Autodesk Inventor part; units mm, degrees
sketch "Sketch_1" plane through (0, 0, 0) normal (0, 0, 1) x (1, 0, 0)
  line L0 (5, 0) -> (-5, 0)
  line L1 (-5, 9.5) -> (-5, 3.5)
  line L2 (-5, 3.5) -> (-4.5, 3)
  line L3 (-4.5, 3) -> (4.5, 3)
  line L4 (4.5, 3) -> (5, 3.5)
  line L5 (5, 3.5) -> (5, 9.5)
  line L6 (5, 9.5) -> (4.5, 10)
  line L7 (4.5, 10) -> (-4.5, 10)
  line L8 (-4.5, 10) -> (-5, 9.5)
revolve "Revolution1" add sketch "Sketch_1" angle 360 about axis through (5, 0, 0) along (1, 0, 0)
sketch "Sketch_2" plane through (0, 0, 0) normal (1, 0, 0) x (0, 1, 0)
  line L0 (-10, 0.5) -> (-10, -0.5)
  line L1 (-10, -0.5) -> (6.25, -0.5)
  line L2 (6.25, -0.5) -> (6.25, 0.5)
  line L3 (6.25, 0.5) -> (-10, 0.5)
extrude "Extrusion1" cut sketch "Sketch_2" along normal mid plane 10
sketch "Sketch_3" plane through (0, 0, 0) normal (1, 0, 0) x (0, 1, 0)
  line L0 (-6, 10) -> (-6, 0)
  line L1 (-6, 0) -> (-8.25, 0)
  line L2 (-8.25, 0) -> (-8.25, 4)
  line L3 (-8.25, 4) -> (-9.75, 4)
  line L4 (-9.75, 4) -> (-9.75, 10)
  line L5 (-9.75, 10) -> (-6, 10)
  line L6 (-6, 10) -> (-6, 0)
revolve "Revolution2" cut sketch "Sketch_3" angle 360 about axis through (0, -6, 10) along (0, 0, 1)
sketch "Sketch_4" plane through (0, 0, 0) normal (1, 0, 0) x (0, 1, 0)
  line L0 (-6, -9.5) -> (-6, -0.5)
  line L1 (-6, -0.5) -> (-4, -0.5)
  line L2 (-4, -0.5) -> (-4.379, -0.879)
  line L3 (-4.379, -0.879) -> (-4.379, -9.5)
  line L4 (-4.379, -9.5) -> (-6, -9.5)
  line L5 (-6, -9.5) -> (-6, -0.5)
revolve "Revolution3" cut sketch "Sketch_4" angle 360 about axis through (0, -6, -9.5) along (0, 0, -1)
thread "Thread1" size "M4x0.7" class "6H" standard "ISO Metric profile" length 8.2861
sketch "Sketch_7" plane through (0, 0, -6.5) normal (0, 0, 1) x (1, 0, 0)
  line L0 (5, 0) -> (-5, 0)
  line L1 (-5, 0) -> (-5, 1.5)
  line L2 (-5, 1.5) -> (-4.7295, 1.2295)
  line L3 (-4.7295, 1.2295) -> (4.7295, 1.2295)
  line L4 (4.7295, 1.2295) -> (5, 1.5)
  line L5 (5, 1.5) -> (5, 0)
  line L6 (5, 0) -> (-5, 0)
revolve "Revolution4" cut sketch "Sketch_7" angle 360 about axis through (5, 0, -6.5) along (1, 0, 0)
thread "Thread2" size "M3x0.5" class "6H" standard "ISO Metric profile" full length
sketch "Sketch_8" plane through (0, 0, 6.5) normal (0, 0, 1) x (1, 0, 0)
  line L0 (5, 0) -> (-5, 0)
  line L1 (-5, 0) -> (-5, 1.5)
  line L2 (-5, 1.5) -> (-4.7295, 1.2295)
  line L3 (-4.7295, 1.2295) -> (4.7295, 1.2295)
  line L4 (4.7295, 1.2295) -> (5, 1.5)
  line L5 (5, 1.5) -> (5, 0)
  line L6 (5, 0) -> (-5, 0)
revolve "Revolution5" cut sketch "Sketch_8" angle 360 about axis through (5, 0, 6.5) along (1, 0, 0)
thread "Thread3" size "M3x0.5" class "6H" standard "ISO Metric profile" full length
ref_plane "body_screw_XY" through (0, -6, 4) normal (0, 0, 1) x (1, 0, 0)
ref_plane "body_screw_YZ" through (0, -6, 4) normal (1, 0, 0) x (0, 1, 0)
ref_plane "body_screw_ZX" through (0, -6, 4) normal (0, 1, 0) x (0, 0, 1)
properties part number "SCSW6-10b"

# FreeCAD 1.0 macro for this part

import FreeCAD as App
import Part
import Sketcher
Q = App.Units.Quantity

doc = App.newDocument("Part")
body = doc.addObject("PartDesign::Body", "Body")

sketch1 = doc.addObject("Sketcher::SketchObject", "Sketch")
body.addObject(sketch1)
sketch1.AttachmentSupport = (doc.XY_Plane, [""])
sketch1.MapMode = "FlatFace"
sketch1.addGeometry([
    Part.LineSegment(App.Vector(-4.5, 10, 0), App.Vector(-5, 9.5, 0)),
    Part.LineSegment(App.Vector(-5, 9.5, 0), App.Vector(-5, 3.5, 0)),
    Part.LineSegment(App.Vector(-5, 3.5, 0), App.Vector(-4.5, 3, 0)),
    Part.LineSegment(App.Vector(-4.5, 3, 0), App.Vector(4.5, 3, 0)),
    Part.LineSegment(App.Vector(4.5, 3, 0), App.Vector(5, 3.5, 0)),
    Part.LineSegment(App.Vector(5, 3.5, 0), App.Vector(5, 9.5, 0)),
    Part.LineSegment(App.Vector(5, 9.5, 0), App.Vector(4.5, 10, 0)),
    Part.LineSegment(App.Vector(4.5, 10, 0), App.Vector(-4.5, 10, 0)),
], False)
sketch1.addConstraint([
    Sketcher.Constraint("Coincident", 0, 2, 1, 1),
    Sketcher.Constraint("Coincident", 1, 2, 2, 1),
    Sketcher.Constraint("Coincident", 2, 2, 3, 1),
    Sketcher.Constraint("Coincident", 3, 2, 4, 1),
    Sketcher.Constraint("Coincident", 4, 2, 5, 1),
    Sketcher.Constraint("Coincident", 5, 2, 6, 1),
    Sketcher.Constraint("Coincident", 6, 2, 7, 1),
    Sketcher.Constraint("Coincident", 7, 2, 0, 1),
    Sketcher.Constraint("Vertical", 1),
    Sketcher.Constraint("Horizontal", 3),
    Sketcher.Constraint("Vertical", 5),
    Sketcher.Constraint("Horizontal", 7),
    Sketcher.Constraint("Symmetric", 1, 2, 4, 2, -2),
    Sketcher.Constraint("Perpendicular", 0, 2),
    Sketcher.Constraint("Perpendicular", 2, 4),
    Sketcher.Constraint("Perpendicular", 4, 6),
    Sketcher.Constraint("Horizontal", 0, 2, 5, 2),
    Sketcher.Constraint("Vertical", 3, 2, 6, 2),
    Sketcher.Constraint("Vertical", 2, 2, 7, 2),
    Sketcher.Constraint("DistanceX", 3, 1, 3, 2, 9.0),
    Sketcher.Constraint("DistanceY", 1, 2, 1, 1, 6.0),
    Sketcher.Constraint("DistanceX", 0, 2, -1, 1, 5.0),
    Sketcher.Constraint("DistanceY", -1, 1, 2, 2, 3.0),
])
revolution = doc.addObject("PartDesign::Revolution", "Revolution")
body.addObject(revolution)
revolution.Profile = sketch1
revolution.ReferenceAxis = (sketch1, ["H_Axis"])
revolution.Angle = 360

sketch2 = doc.addObject("Sketcher::SketchObject", "Sketch001")
body.addObject(sketch2)
sketch2.AttachmentSupport = (doc.YZ_Plane, [""])
sketch2.MapMode = "FlatFace"
sketch2.addGeometry([
    Part.LineSegment(App.Vector(6.25, 0.5, 0), App.Vector(-10, 0.5, 0)),
    Part.LineSegment(App.Vector(-10, 0.5, 0), App.Vector(-10, -0.5, 0)),
    Part.LineSegment(App.Vector(-10, -0.5, 0), App.Vector(6.25, -0.5, 0)),
    Part.LineSegment(App.Vector(6.25, -0.5, 0), App.Vector(6.25, 0.5, 0)),
], False)
sketch2.addConstraint([
    Sketcher.Constraint("Coincident", 0, 2, 1, 1),
    Sketcher.Constraint("Coincident", 1, 2, 2, 1),
    Sketcher.Constraint("Coincident", 2, 2, 3, 1),
    Sketcher.Constraint("Coincident", 3, 2, 0, 1),
    Sketcher.Constraint("Horizontal", 0),
    Sketcher.Constraint("Vertical", 1),
    Sketcher.Constraint("Horizontal", 2),
    Sketcher.Constraint("Vertical", 3),
    Sketcher.Constraint("DistanceY", 1, 2, 1, 1, 1.0),
    Sketcher.Constraint("DistanceX", 0, 2, -1, 1, 10.0),
    Sketcher.Constraint("DistanceX", 0, 2, 0, 1, 16.25),
    Sketcher.Constraint("DistanceY", -1, 1, 0, 2, 0.5),
])
pocket1 = doc.addObject("PartDesign::Pocket", "Pocket")
body.addObject(pocket1)
pocket1.Profile = sketch2
pocket1.Length = 10
pocket1.Midplane = True

sketch3 = doc.addObject("Sketcher::SketchObject", "Sketch002")
body.addObject(sketch3)
sketch3.AttachmentSupport = (doc.YZ_Plane, [""])
sketch3.MapMode = "FlatFace"
sketch3.addGeometry([
    Part.LineSegment(App.Vector(-6, 0, 0), App.Vector(-6, 10, 0)),
    Part.LineSegment(App.Vector(-6, 10, 0), App.Vector(-9.75, 10, 0)),
    Part.LineSegment(App.Vector(-9.75, 10, 0), App.Vector(-9.75, 4, 0)),
    Part.LineSegment(App.Vector(-9.75, 4, 0), App.Vector(-8.25, 4, 0)),
    Part.LineSegment(App.Vector(-8.25, 4, 0), App.Vector(-8.25, 0, 0)),
    Part.LineSegment(App.Vector(-8.25, 0, 0), App.Vector(-6, 0, 0)),
], False)
sketch3.addGeometry(Part.LineSegment(App.Vector(-6, 0, 0), App.Vector(-6, 10, 0)), True)
sketch3.addConstraint([
    Sketcher.Constraint("Coincident", 0, 2, 1, 1),
    Sketcher.Constraint("Coincident", 1, 2, 2, 1),
    Sketcher.Constraint("Coincident", 2, 2, 3, 1),
    Sketcher.Constraint("Coincident", 3, 2, 4, 1),
    Sketcher.Constraint("Coincident", 4, 2, 5, 1),
    Sketcher.Constraint("Coincident", 5, 2, 0, 1),
    Sketcher.Constraint("Vertical", 0),
    Sketcher.Constraint("Horizontal", 1),
    Sketcher.Constraint("Vertical", 2),
    Sketcher.Constraint("Horizontal", 3),
    Sketcher.Constraint("Vertical", 4),
    Sketcher.Constraint("Horizontal", 5),
    Sketcher.Constraint("Vertical", 6),
    Sketcher.Constraint("Coincident", 6, 1, 5, 2),
    Sketcher.Constraint("PointOnObject", 4, 2, -1),
    Sketcher.Constraint("Horizontal", 1, 2, 6, 2),
    Sketcher.Constraint("DistanceY", 0, 1, 0, 2, 10.0),
    Sketcher.Constraint("DistanceY", 2, 2, 2, 1, 6.0),
    Sketcher.Constraint("DistanceX", 3, 1, 3, 2, 1.5),
    Sketcher.Constraint("DistanceX", 0, 2, -1, 1, 6.0),
    Sketcher.Constraint("DistanceX", 1, 2, 1, 1, 3.75),
])
groove = doc.addObject("PartDesign::Groove", "Groove")
body.addObject(groove)
groove.Profile = sketch3
groove.ReferenceAxis = (sketch3, ["Axis0"])
groove.Angle = 360

sketch4 = doc.addObject("Sketcher::SketchObject", "Sketch003")
body.addObject(sketch4)
sketch4.AttachmentSupport = (doc.YZ_Plane, [""])
sketch4.MapMode = "FlatFace"
sketch4.addGeometry([
    Part.LineSegment(App.Vector(-6, -0.5, 0), App.Vector(-6, -9.5, 0)),
    Part.LineSegment(App.Vector(-6, -9.5, 0), App.Vector(-4.379, -9.5, 0)),
    Part.LineSegment(App.Vector(-4.379, -9.5, 0), App.Vector(-4.379, -0.879, 0)),
    Part.LineSegment(App.Vector(-4.379, -0.879, 0), App.Vector(-4, -0.5, 0)),
    Part.LineSegment(App.Vector(-4, -0.5, 0), App.Vector(-6, -0.5, 0)),
], False)
sketch4.addGeometry(Part.LineSegment(App.Vector(-6, -0.5, 0), App.Vector(-6, -9.5, 0)), True)
sketch4.addConstraint([
    Sketcher.Constraint("Coincident", 0, 2, 1, 1),
    Sketcher.Constraint("Coincident", 1, 2, 2, 1),
    Sketcher.Constraint("Coincident", 2, 2, 3, 1),
    Sketcher.Constraint("Coincident", 3, 2, 4, 1),
    Sketcher.Constraint("Coincident", 4, 2, 0, 1),
    Sketcher.Constraint("Vertical", 0),
    Sketcher.Constraint("Horizontal", 1),
    Sketcher.Constraint("Vertical", 2),
    Sketcher.Constraint("Horizontal", 4),
    Sketcher.Constraint("Vertical", 5),
    Sketcher.Constraint("Coincident", 5, 1, 4, 2),
    Sketcher.Constraint("Horizontal", 1, 2, 5, 2),
    Sketcher.Constraint("DistanceX", 4, 2, 4, 1, 2.0),
    Sketcher.Constraint("DistanceY", 0, 2, 0, 1, 9.0),
    Sketcher.Constraint("Angle", 3, Q("45 deg")),
    Sketcher.Constraint("DistanceX", 0, 2, -1, 1, 6.0),
    Sketcher.Constraint("DistanceY", 0, 2, -1, 1, 9.5),
    Sketcher.Constraint("DistanceX", 1, 1, 1, 2, 1.621),
])
groove2 = doc.addObject("PartDesign::Groove", "Groove001")
body.addObject(groove2)
groove2.Profile = sketch4
groove2.ReferenceAxis = (sketch4, ["Axis0"])
groove2.Angle = 360

sketch5 = doc.addObject("Sketcher::SketchObject", "Sketch004")
body.addObject(sketch5)
sketch5.AttachmentSupport = (doc.XY_Plane, [""])
sketch5.MapMode = "FlatFace"
sketch5.AttachmentOffset = App.Placement(App.Vector(0, 0, -6.5), App.Rotation())
sketch5.addGeometry([
    Part.LineSegment(App.Vector(-5, 0, 0), App.Vector(5, 0, 0)),
    Part.LineSegment(App.Vector(5, 0, 0), App.Vector(5, 1.5, 0)),
    Part.LineSegment(App.Vector(5, 1.5, 0), App.Vector(4.7295, 1.2295, 0)),
    Part.LineSegment(App.Vector(4.7295, 1.2295, 0), App.Vector(-4.7295, 1.2295, 0)),
    Part.LineSegment(App.Vector(-4.7295, 1.2295, 0), App.Vector(-5, 1.5, 0)),
    Part.LineSegment(App.Vector(-5, 1.5, 0), App.Vector(-5, 0, 0)),
], False)
sketch5.addConstraint([
    Sketcher.Constraint("Coincident", 0, 2, 1, 1),
    Sketcher.Constraint("Coincident", 1, 2, 2, 1),
    Sketcher.Constraint("Coincident", 2, 2, 3, 1),
    Sketcher.Constraint("Coincident", 3, 2, 4, 1),
    Sketcher.Constraint("Coincident", 4, 2, 5, 1),
    Sketcher.Constraint("Coincident", 5, 2, 0, 1),
    Sketcher.Constraint("Horizontal", 0),
    Sketcher.Constraint("Vertical", 1),
    Sketcher.Constraint("Horizontal", 3),
    Sketcher.Constraint("Vertical", 5),
    Sketcher.Constraint("Symmetric", 0, 2, 5, 2, -1, 1),
    Sketcher.Constraint("Perpendicular", 2, 4),
    Sketcher.Constraint("Horizontal", 1, 2, 4, 2),
    Sketcher.Constraint("Equal", 2, 4),
    Sketcher.Constraint("DistanceX", 0, 1, 0, 2, 10.0),
    Sketcher.Constraint("DistanceY", 1, 1, 1, 2, 1.5),
    Sketcher.Constraint("DistanceX", 3, 2, 3, 1, 9.459),
])
groove3 = doc.addObject("PartDesign::Groove", "Groove002")
body.addObject(groove3)
groove3.Profile = sketch5
groove3.ReferenceAxis = (sketch5, ["H_Axis"])
groove3.Angle = 360

sketch6 = doc.addObject("Sketcher::SketchObject", "Sketch005")
body.addObject(sketch6)
sketch6.AttachmentSupport = (doc.XY_Plane, [""])
sketch6.MapMode = "FlatFace"
sketch6.AttachmentOffset = App.Placement(App.Vector(0, 0, 6.5), App.Rotation())
sketch6.addGeometry([
    Part.LineSegment(App.Vector(-5, 0, 0), App.Vector(5, 0, 0)),
    Part.LineSegment(App.Vector(5, 0, 0), App.Vector(5, 1.5, 0)),
    Part.LineSegment(App.Vector(5, 1.5, 0), App.Vector(4.7295, 1.2295, 0)),
    Part.LineSegment(App.Vector(4.7295, 1.2295, 0), App.Vector(-4.7295, 1.2295, 0)),
    Part.LineSegment(App.Vector(-4.7295, 1.2295, 0), App.Vector(-5, 1.5, 0)),
    Part.LineSegment(App.Vector(-5, 1.5, 0), App.Vector(-5, 0, 0)),
], False)
sketch6.addConstraint([
    Sketcher.Constraint("Coincident", 0, 2, 1, 1),
    Sketcher.Constraint("Coincident", 1, 2, 2, 1),
    Sketcher.Constraint("Coincident", 2, 2, 3, 1),
    Sketcher.Constraint("Coincident", 3, 2, 4, 1),
    Sketcher.Constraint("Coincident", 4, 2, 5, 1),
    Sketcher.Constraint("Coincident", 5, 2, 0, 1),
    Sketcher.Constraint("Horizontal", 0),
    Sketcher.Constraint("Vertical", 1),
    Sketcher.Constraint("Horizontal", 3),
    Sketcher.Constraint("Vertical", 5),
    Sketcher.Constraint("Symmetric", 0, 2, 5, 2, -1, 1),
    Sketcher.Constraint("Perpendicular", 2, 4),
    Sketcher.Constraint("Horizontal", 1, 2, 4, 2),
    Sketcher.Constraint("Equal", 2, 4),
    Sketcher.Constraint("DistanceX", 0, 1, 0, 2, 10.0),
    Sketcher.Constraint("DistanceY", 1, 1, 1, 2, 1.5),
    Sketcher.Constraint("DistanceX", 3, 2, 3, 1, 9.459),
])
groove4 = doc.addObject("PartDesign::Groove", "Groove003")
body.addObject(groove4)
groove4.Profile = sketch6
groove4.ReferenceAxis = (sketch6, ["H_Axis"])
groove4.Angle = 360

doc.recompute()
